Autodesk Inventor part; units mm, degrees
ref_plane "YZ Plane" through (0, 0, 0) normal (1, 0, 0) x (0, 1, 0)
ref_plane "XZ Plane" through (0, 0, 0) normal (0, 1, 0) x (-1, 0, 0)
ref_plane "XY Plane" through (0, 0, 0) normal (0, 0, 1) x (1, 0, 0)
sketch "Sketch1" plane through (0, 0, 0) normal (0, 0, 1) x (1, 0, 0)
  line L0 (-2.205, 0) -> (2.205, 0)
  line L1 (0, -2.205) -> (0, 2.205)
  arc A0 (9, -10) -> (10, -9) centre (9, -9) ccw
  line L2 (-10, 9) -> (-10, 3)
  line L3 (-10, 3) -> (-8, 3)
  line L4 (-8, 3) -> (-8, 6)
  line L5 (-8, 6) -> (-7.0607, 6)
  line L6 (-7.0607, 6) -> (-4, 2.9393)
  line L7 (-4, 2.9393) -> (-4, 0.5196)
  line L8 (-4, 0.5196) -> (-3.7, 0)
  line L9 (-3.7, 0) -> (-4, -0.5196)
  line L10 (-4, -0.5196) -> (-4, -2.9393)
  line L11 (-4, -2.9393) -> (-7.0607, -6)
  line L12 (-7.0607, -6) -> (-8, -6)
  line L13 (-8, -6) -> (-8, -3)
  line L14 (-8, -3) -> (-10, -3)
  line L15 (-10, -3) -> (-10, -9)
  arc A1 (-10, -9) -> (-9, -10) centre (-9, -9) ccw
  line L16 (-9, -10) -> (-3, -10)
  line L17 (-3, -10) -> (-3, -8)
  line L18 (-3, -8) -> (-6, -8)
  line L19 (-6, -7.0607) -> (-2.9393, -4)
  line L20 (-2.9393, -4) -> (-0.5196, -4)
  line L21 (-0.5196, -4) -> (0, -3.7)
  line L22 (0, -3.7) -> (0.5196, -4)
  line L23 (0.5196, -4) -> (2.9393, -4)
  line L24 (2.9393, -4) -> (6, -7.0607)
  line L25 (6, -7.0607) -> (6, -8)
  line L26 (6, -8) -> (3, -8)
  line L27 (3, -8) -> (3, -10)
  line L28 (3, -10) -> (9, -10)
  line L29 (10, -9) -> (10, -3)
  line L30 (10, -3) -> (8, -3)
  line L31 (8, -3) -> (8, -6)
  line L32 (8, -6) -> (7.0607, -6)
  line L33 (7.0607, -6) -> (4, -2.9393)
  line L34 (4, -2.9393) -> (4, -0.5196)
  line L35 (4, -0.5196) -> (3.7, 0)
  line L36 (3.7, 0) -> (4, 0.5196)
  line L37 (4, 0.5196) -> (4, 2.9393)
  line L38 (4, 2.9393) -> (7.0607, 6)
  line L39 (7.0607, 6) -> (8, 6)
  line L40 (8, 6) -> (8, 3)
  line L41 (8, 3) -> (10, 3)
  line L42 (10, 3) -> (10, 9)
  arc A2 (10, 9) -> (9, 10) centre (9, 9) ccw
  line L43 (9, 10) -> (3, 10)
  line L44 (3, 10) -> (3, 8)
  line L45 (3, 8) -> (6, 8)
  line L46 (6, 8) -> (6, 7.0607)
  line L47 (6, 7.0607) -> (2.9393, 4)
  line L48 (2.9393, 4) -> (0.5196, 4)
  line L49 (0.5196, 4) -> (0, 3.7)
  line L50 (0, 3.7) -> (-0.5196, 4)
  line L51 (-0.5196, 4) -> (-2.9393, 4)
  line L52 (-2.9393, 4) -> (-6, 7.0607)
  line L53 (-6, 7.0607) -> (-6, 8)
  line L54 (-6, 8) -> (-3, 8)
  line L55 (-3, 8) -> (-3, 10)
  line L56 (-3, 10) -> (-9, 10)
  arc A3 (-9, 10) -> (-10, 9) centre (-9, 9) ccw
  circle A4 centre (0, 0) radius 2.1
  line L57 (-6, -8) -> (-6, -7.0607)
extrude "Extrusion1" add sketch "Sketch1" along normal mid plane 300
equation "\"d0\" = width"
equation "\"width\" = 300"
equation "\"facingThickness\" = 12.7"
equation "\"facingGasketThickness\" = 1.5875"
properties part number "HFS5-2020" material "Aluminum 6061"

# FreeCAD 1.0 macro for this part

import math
import FreeCAD as App
import Part
import Sketcher

V = App.Vector
Q = App.Units.Quantity

doc = App.newDocument("Part")
body = doc.addObject("PartDesign::Body", "Body")

sketch1 = body.newObject("Sketcher::SketchObject", "Sketch")
sketch1.AttachmentSupport = (doc.getObject("XY_Plane"), [""])
sketch1.MapMode = "FlatFace"
sketch1.addGeometry(Part.LineSegment(V(3, -10, 0), V(9, -10, 0)), False)
sketch1.addGeometry(Part.ArcOfCircle(Part.Circle(V(9, -9, 0), V(0, 0, 1), 1), math.radians(-90), math.radians(0)), False)
sketch1.addGeometry(Part.LineSegment(V(10, -9, 0), V(10, -3, 0)), False)
sketch1.addGeometry(Part.LineSegment(V(10, -3, 0), V(8, -3, 0)), False)
sketch1.addGeometry(Part.LineSegment(V(8, -3, 0), V(8, -6, 0)), False)
sketch1.addGeometry(Part.LineSegment(V(8, -6, 0), V(7.1, -6, 0)), False)
sketch1.addGeometry(Part.LineSegment(V(7.1, -6, 0), V(4, -2.9, 0)), False)
sketch1.addGeometry(Part.LineSegment(V(4, -2.9, 0), V(4, -0.5, 0)), False)
sketch1.addGeometry(Part.LineSegment(V(4, -0.5, 0), V(3.7, 0, 0)), False)
sketch1.addGeometry(Part.LineSegment(V(3.7, 0, 0), V(4, 0.5, 0)), False)
sketch1.addGeometry(Part.LineSegment(V(4, 0.5, 0), V(4, 2.9, 0)), False)
sketch1.addGeometry(Part.LineSegment(V(4, 2.9, 0), V(7.1, 6, 0)), False)
sketch1.addGeometry(Part.LineSegment(V(7.1, 6, 0), V(8, 6, 0)), False)
sketch1.addGeometry(Part.LineSegment(V(8, 6, 0), V(8, 3, 0)), False)
sketch1.addGeometry(Part.LineSegment(V(8, 3, 0), V(10, 3, 0)), False)
sketch1.addGeometry(Part.LineSegment(V(10, 3, 0), V(10, 9, 0)), False)
sketch1.addGeometry(Part.ArcOfCircle(Part.Circle(V(9, 9, 0), V(0, 0, 1), 1), math.radians(0), math.radians(90)), False)
sketch1.addGeometry(Part.LineSegment(V(9, 10, 0), V(3, 10, 0)), False)
sketch1.addGeometry(Part.LineSegment(V(3, 10, 0), V(3, 8, 0)), False)
sketch1.addGeometry(Part.LineSegment(V(3, 8, 0), V(6, 8, 0)), False)
sketch1.addGeometry(Part.LineSegment(V(6, 8, 0), V(6, 7.1, 0)), False)
sketch1.addGeometry(Part.LineSegment(V(6, 7.1, 0), V(2.9, 4, 0)), False)
sketch1.addGeometry(Part.LineSegment(V(2.9, 4, 0), V(0.5, 4, 0)), False)
sketch1.addGeometry(Part.LineSegment(V(0.5, 4, 0), V(0, 3.7, 0)), False)
sketch1.addGeometry(Part.LineSegment(V(0, 3.7, 0), V(-0.5, 4, 0)), False)
sketch1.addGeometry(Part.LineSegment(V(-0.5, 4, 0), V(-2.9, 4, 0)), False)
sketch1.addGeometry(Part.LineSegment(V(-2.9, 4, 0), V(-6, 7.1, 0)), False)
sketch1.addGeometry(Part.LineSegment(V(-6, 7.1, 0), V(-6, 8, 0)), False)
sketch1.addGeometry(Part.LineSegment(V(-6, 8, 0), V(-3, 8, 0)), False)
sketch1.addGeometry(Part.LineSegment(V(-3, 8, 0), V(-3, 10, 0)), False)
sketch1.addGeometry(Part.LineSegment(V(-3, 10, 0), V(-9, 10, 0)), False)
sketch1.addGeometry(Part.ArcOfCircle(Part.Circle(V(-9, 9, 0), V(0, 0, 1), 1), math.radians(90), math.radians(180)), False)
sketch1.addGeometry(Part.LineSegment(V(-10, 9, 0), V(-10, 3, 0)), False)
sketch1.addGeometry(Part.LineSegment(V(-10, 3, 0), V(-8, 3, 0)), False)
sketch1.addGeometry(Part.LineSegment(V(-8, 3, 0), V(-8, 6, 0)), False)
sketch1.addGeometry(Part.LineSegment(V(-8, 6, 0), V(-7.1, 6, 0)), False)
sketch1.addGeometry(Part.LineSegment(V(-7.1, 6, 0), V(-4, 2.9, 0)), False)
sketch1.addGeometry(Part.LineSegment(V(-4, 2.9, 0), V(-4, 0.5, 0)), False)
sketch1.addGeometry(Part.LineSegment(V(-4, 0.5, 0), V(-3.7, 0, 0)), False)
sketch1.addGeometry(Part.LineSegment(V(-3.7, 0, 0), V(-4, -0.5, 0)), False)
sketch1.addGeometry(Part.LineSegment(V(-4, -0.5, 0), V(-4, -2.9, 0)), False)
sketch1.addGeometry(Part.LineSegment(V(-4, -2.9, 0), V(-7.1, -6, 0)), False)
sketch1.addGeometry(Part.LineSegment(V(-7.1, -6, 0), V(-8, -6, 0)), False)
sketch1.addGeometry(Part.LineSegment(V(-8, -6, 0), V(-8, -3, 0)), False)
sketch1.addGeometry(Part.LineSegment(V(-8, -3, 0), V(-10, -3, 0)), False)
sketch1.addGeometry(Part.LineSegment(V(-10, -3, 0), V(-10, -9, 0)), False)
sketch1.addGeometry(Part.ArcOfCircle(Part.Circle(V(-9, -9, 0), V(0, 0, 1), 1), math.radians(180), math.radians(270)), False)
sketch1.addGeometry(Part.LineSegment(V(-9, -10, 0), V(-3, -10, 0)), False)
sketch1.addGeometry(Part.LineSegment(V(-3, -10, 0), V(-3, -8, 0)), False)
sketch1.addGeometry(Part.LineSegment(V(-3, -8, 0), V(-6, -8, 0)), False)
sketch1.addGeometry(Part.LineSegment(V(-6, -8, 0), V(-6, -7.1, 0)), False)
sketch1.addGeometry(Part.LineSegment(V(-6, -7.1, 0), V(-2.9, -4, 0)), False)
sketch1.addGeometry(Part.LineSegment(V(-2.9, -4, 0), V(-0.5, -4, 0)), False)
sketch1.addGeometry(Part.LineSegment(V(-0.5, -4, 0), V(0, -3.7, 0)), False)
sketch1.addGeometry(Part.LineSegment(V(0, -3.7, 0), V(0.5, -4, 0)), False)
sketch1.addGeometry(Part.LineSegment(V(0.5, -4, 0), V(2.9, -4, 0)), False)
sketch1.addGeometry(Part.LineSegment(V(2.9, -4, 0), V(6, -7.1, 0)), False)
sketch1.addGeometry(Part.LineSegment(V(6, -7.1, 0), V(6, -8, 0)), False)
sketch1.addGeometry(Part.LineSegment(V(6, -8, 0), V(3, -8, 0)), False)
sketch1.addGeometry(Part.LineSegment(V(3, -8, 0), V(3, -10, 0)), False)
sketch1.addGeometry(Part.Circle(V(0, 0, 0), V(0, 0, 1), 2.1), False)
sketch1.addConstraint(Sketcher.Constraint("Tangent", 0, 2, 1, 1))
sketch1.addConstraint(Sketcher.Constraint("Tangent", 1, 2, 2, 1))
sketch1.addConstraint(Sketcher.Constraint("Coincident", 2, 2, 3, 1))
sketch1.addConstraint(Sketcher.Constraint("Coincident", 3, 2, 4, 1))
sketch1.addConstraint(Sketcher.Constraint("Coincident", 4, 2, 5, 1))
sketch1.addConstraint(Sketcher.Constraint("Coincident", 5, 2, 6, 1))
sketch1.addConstraint(Sketcher.Constraint("Coincident", 6, 2, 7, 1))
sketch1.addConstraint(Sketcher.Constraint("Coincident", 7, 2, 8, 1))
sketch1.addConstraint(Sketcher.Constraint("Coincident", 8, 2, 9, 1))
sketch1.addConstraint(Sketcher.Constraint("Coincident", 9, 2, 10, 1))
sketch1.addConstraint(Sketcher.Constraint("Coincident", 10, 2, 11, 1))
sketch1.addConstraint(Sketcher.Constraint("Coincident", 11, 2, 12, 1))
sketch1.addConstraint(Sketcher.Constraint("Coincident", 12, 2, 13, 1))
sketch1.addConstraint(Sketcher.Constraint("Coincident", 13, 2, 14, 1))
sketch1.addConstraint(Sketcher.Constraint("Coincident", 14, 2, 15, 1))
sketch1.addConstraint(Sketcher.Constraint("Tangent", 15, 2, 16, 1))
sketch1.addConstraint(Sketcher.Constraint("Tangent", 16, 2, 17, 1))
sketch1.addConstraint(Sketcher.Constraint("Coincident", 17, 2, 18, 1))
sketch1.addConstraint(Sketcher.Constraint("Coincident", 18, 2, 19, 1))
sketch1.addConstraint(Sketcher.Constraint("Coincident", 19, 2, 20, 1))
sketch1.addConstraint(Sketcher.Constraint("Coincident", 20, 2, 21, 1))
sketch1.addConstraint(Sketcher.Constraint("Coincident", 21, 2, 22, 1))
sketch1.addConstraint(Sketcher.Constraint("Coincident", 22, 2, 23, 1))
sketch1.addConstraint(Sketcher.Constraint("Coincident", 23, 2, 24, 1))
sketch1.addConstraint(Sketcher.Constraint("Coincident", 24, 2, 25, 1))
sketch1.addConstraint(Sketcher.Constraint("Coincident", 25, 2, 26, 1))
sketch1.addConstraint(Sketcher.Constraint("Coincident", 26, 2, 27, 1))
sketch1.addConstraint(Sketcher.Constraint("Coincident", 27, 2, 28, 1))
sketch1.addConstraint(Sketcher.Constraint("Coincident", 28, 2, 29, 1))
sketch1.addConstraint(Sketcher.Constraint("Coincident", 29, 2, 30, 1))
sketch1.addConstraint(Sketcher.Constraint("Tangent", 30, 2, 31, 1))
sketch1.addConstraint(Sketcher.Constraint("Tangent", 31, 2, 32, 1))
sketch1.addConstraint(Sketcher.Constraint("Coincident", 32, 2, 33, 1))
sketch1.addConstraint(Sketcher.Constraint("Coincident", 33, 2, 34, 1))
sketch1.addConstraint(Sketcher.Constraint("Coincident", 34, 2, 35, 1))
sketch1.addConstraint(Sketcher.Constraint("Coincident", 35, 2, 36, 1))
sketch1.addConstraint(Sketcher.Constraint("Coincident", 36, 2, 37, 1))
sketch1.addConstraint(Sketcher.Constraint("Coincident", 37, 2, 38, 1))
sketch1.addConstraint(Sketcher.Constraint("Coincident", 38, 2, 39, 1))
sketch1.addConstraint(Sketcher.Constraint("Coincident", 39, 2, 40, 1))
sketch1.addConstraint(Sketcher.Constraint("Coincident", 40, 2, 41, 1))
sketch1.addConstraint(Sketcher.Constraint("Coincident", 41, 2, 42, 1))
sketch1.addConstraint(Sketcher.Constraint("Coincident", 42, 2, 43, 1))
sketch1.addConstraint(Sketcher.Constraint("Coincident", 43, 2, 44, 1))
sketch1.addConstraint(Sketcher.Constraint("Coincident", 44, 2, 45, 1))
sketch1.addConstraint(Sketcher.Constraint("Tangent", 45, 2, 46, 1))
sketch1.addConstraint(Sketcher.Constraint("Tangent", 46, 2, 47, 1))
sketch1.addConstraint(Sketcher.Constraint("Coincident", 47, 2, 48, 1))
sketch1.addConstraint(Sketcher.Constraint("Coincident", 48, 2, 49, 1))
sketch1.addConstraint(Sketcher.Constraint("Coincident", 49, 2, 50, 1))
sketch1.addConstraint(Sketcher.Constraint("Coincident", 50, 2, 51, 1))
sketch1.addConstraint(Sketcher.Constraint("Coincident", 51, 2, 52, 1))
sketch1.addConstraint(Sketcher.Constraint("Coincident", 52, 2, 53, 1))
sketch1.addConstraint(Sketcher.Constraint("Coincident", 53, 2, 54, 1))
sketch1.addConstraint(Sketcher.Constraint("Coincident", 54, 2, 55, 1))
sketch1.addConstraint(Sketcher.Constraint("Coincident", 55, 2, 56, 1))
sketch1.addConstraint(Sketcher.Constraint("Coincident", 56, 2, 57, 1))
sketch1.addConstraint(Sketcher.Constraint("Coincident", 57, 2, 58, 1))
sketch1.addConstraint(Sketcher.Constraint("Coincident", 58, 2, 59, 1))
sketch1.addConstraint(Sketcher.Constraint("Coincident", 59, 2, 0, 1))
sketch1.addConstraint(Sketcher.Constraint("Horizontal", 0))
sketch1.addConstraint(Sketcher.Constraint("Vertical", 2))
sketch1.addConstraint(Sketcher.Constraint("Horizontal", 3))
sketch1.addConstraint(Sketcher.Constraint("Vertical", 4))
sketch1.addConstraint(Sketcher.Constraint("Horizontal", 5))
sketch1.addConstraint(Sketcher.Constraint("Vertical", 7))
sketch1.addConstraint(Sketcher.Constraint("Vertical", 10))
sketch1.addConstraint(Sketcher.Constraint("Horizontal", 12))
sketch1.addConstraint(Sketcher.Constraint("Vertical", 13))
sketch1.addConstraint(Sketcher.Constraint("Horizontal", 14))
sketch1.addConstraint(Sketcher.Constraint("Vertical", 15))
sketch1.addConstraint(Sketcher.Constraint("Horizontal", 17))
sketch1.addConstraint(Sketcher.Constraint("Vertical", 18))
sketch1.addConstraint(Sketcher.Constraint("Horizontal", 19))
sketch1.addConstraint(Sketcher.Constraint("Vertical", 20))
sketch1.addConstraint(Sketcher.Constraint("Horizontal", 22))
sketch1.addConstraint(Sketcher.Constraint("Horizontal", 25))
sketch1.addConstraint(Sketcher.Constraint("Vertical", 27))
sketch1.addConstraint(Sketcher.Constraint("Horizontal", 28))
sketch1.addConstraint(Sketcher.Constraint("Vertical", 29))
sketch1.addConstraint(Sketcher.Constraint("Horizontal", 30))
sketch1.addConstraint(Sketcher.Constraint("Vertical", 32))
sketch1.addConstraint(Sketcher.Constraint("Horizontal", 33))
sketch1.addConstraint(Sketcher.Constraint("Vertical", 34))
sketch1.addConstraint(Sketcher.Constraint("Horizontal", 35))
sketch1.addConstraint(Sketcher.Constraint("Vertical", 37))
sketch1.addConstraint(Sketcher.Constraint("Vertical", 40))
sketch1.addConstraint(Sketcher.Constraint("Horizontal", 42))
sketch1.addConstraint(Sketcher.Constraint("Vertical", 43))
sketch1.addConstraint(Sketcher.Constraint("Horizontal", 44))
sketch1.addConstraint(Sketcher.Constraint("Vertical", 45))
sketch1.addConstraint(Sketcher.Constraint("Horizontal", 47))
sketch1.addConstraint(Sketcher.Constraint("Vertical", 48))
sketch1.addConstraint(Sketcher.Constraint("Horizontal", 49))
sketch1.addConstraint(Sketcher.Constraint("Vertical", 50))
sketch1.addConstraint(Sketcher.Constraint("Horizontal", 52))
sketch1.addConstraint(Sketcher.Constraint("Horizontal", 55))
sketch1.addConstraint(Sketcher.Constraint("Vertical", 57))
sketch1.addConstraint(Sketcher.Constraint("Horizontal", 58))
sketch1.addConstraint(Sketcher.Constraint("Vertical", 59))
sketch1.addConstraint(Sketcher.Constraint("Coincident", 60, 3, -1, 1))
sketch1.addConstraint(Sketcher.Constraint("Equal", 1, 16))
sketch1.addConstraint(Sketcher.Constraint("Equal", 16, 31))
sketch1.addConstraint(Sketcher.Constraint("Equal", 31, 46))
sketch1.addConstraint(Sketcher.Constraint("Symmetric", 1, 3, 31, 3, -1, 1))
sketch1.addConstraint(Sketcher.Constraint("Symmetric", 16, 3, 46, 3, -1, 1))
sketch1.addConstraint(Sketcher.Constraint("Symmetric", 3, 2, 33, 2, -1, 1))
sketch1.addConstraint(Sketcher.Constraint("Symmetric", 5, 2, 35, 2, -1, 1))
sketch1.addConstraint(Sketcher.Constraint("Symmetric", 6, 2, 36, 2, -1, 1))
sketch1.addConstraint(Sketcher.Constraint("Symmetric", 8, 2, 38, 2, -1, 1))
sketch1.addConstraint(Sketcher.Constraint("Symmetric", 9, 2, 39, 2, -1, 1))
sketch1.addConstraint(Sketcher.Constraint("Symmetric", 11, 2, 41, 2, -1, 1))
sketch1.addConstraint(Sketcher.Constraint("Symmetric", 13, 2, 43, 2, -1, 1))
sketch1.addConstraint(Sketcher.Constraint("Symmetric", 18, 2, 48, 2, -1, 1))
sketch1.addConstraint(Sketcher.Constraint("Symmetric", 20, 2, 50, 2, -1, 1))
sketch1.addConstraint(Sketcher.Constraint("Symmetric", 21, 2, 51, 2, -1, 1))
sketch1.addConstraint(Sketcher.Constraint("Symmetric", 23, 2, 53, 2, -1, 1))
sketch1.addConstraint(Sketcher.Constraint("Symmetric", 24, 2, 54, 2, -1, 1))
sketch1.addConstraint(Sketcher.Constraint("Symmetric", 26, 2, 56, 2, -1, 1))
sketch1.addConstraint(Sketcher.Constraint("Symmetric", 28, 2, 58, 2, -1, 1))
sketch1.addConstraint(Sketcher.Constraint("Symmetric", 16, 3, 31, 3, -2))
sketch1.addConstraint(Sketcher.Constraint("Symmetric", 22, 2, 24, 2, -2))
sketch1.addConstraint(Sketcher.Constraint("Symmetric", 20, 2, 26, 2, -2))
sketch1.addConstraint(Sketcher.Constraint("Symmetric", 18, 2, 28, 2, -2))
sketch1.addConstraint(Sketcher.Constraint("Symmetric", 13, 2, 33, 2, -2))
sketch1.addConstraint(Sketcher.Constraint("Symmetric", 11, 2, 35, 2, -2))
sketch1.addConstraint(Sketcher.Constraint("Symmetric", 10, 2, 36, 2, -2))
sketch1.addConstraint(Sketcher.Constraint("PointOnObject", 8, 2, -1))
sketch1.addConstraint(Sketcher.Constraint("PointOnObject", 23, 2, -2))
sketch1.addConstraint(Sketcher.Constraint("Perpendicular", 6, 11))
sketch1.addConstraint(Sketcher.Constraint("Parallel", 11, 21))
sketch1.addConstraint(Sketcher.Constraint("Perpendicular", 8, 23))
sketch1.addConstraint(Sketcher.Constraint("Perpendicular", 9, 24))
sketch1.addConstraint(Sketcher.Constraint("Perpendicular", 21, 26))
sketch1.addConstraint(Sketcher.Constraint("Perpendicular", 23, 38))
sketch1.addConstraint(Sketcher.Constraint("Perpendicular", 36, 41))
sketch1.addConstraint(Sketcher.Constraint("Perpendicular", 38, 53))
sketch1.addConstraint(Sketcher.Constraint("Perpendicular", 51, 56))
sketch1.addConstraint(Sketcher.Constraint("Equal", 47, 2))
sketch1.addConstraint(Sketcher.Constraint("Equal", 58, 4))
sketch1.addConstraint(Sketcher.Constraint("Equal", 55, 7))
sketch1.addConstraint(Sketcher.Constraint("Equal", 44, 18))
sketch1.addConstraint(Sketcher.Constraint("Equal", 42, 20))
sketch1.addConstraint(Sketcher.Constraint("Equal", 11, 21))
sketch1.addConstraint(Sketcher.Constraint("Equal", 9, 23))
sketch1.addConstraint(Sketcher.Constraint("Radius", 1, Q("1 mm")))
sketch1.addConstraint(Sketcher.Constraint("Diameter", 60, Q("4.2 mm")))
sketch1.addConstraint(Sketcher.Constraint("DistanceX", 0, 1, 0, 2, Q("6 mm")))
sketch1.addConstraint(Sketcher.Constraint("DistanceX", 3, 2, 3, 1, Q("2 mm")))
sketch1.addConstraint(Sketcher.Constraint("DistanceX", 19, 1, 19, 2, Q("3 mm")))
sketch1.addConstraint(Sketcher.Constraint("Angle", 8, Q("120.0007 deg")))
sketch1.addConstraint(Sketcher.Constraint("DistanceX", -1, 1, 1, 3, Q("9 mm")))
sketch1.addConstraint(Sketcher.Constraint("DistanceX", -1, 1, 6, 2, Q("4 mm")))
sketch1.addConstraint(Sketcher.Constraint("Distance", 8, Q("0.6 mm")))
sketch1.addConstraint(Sketcher.Constraint("DistanceX", 5, 2, 5, 1, Q("0.9393 mm")))
pad1 = body.newObject("PartDesign::Pad", "Pad")
pad1.Profile = sketch1
pad1.Length = 300
pad1.Midplane = True

doc.recompute()
